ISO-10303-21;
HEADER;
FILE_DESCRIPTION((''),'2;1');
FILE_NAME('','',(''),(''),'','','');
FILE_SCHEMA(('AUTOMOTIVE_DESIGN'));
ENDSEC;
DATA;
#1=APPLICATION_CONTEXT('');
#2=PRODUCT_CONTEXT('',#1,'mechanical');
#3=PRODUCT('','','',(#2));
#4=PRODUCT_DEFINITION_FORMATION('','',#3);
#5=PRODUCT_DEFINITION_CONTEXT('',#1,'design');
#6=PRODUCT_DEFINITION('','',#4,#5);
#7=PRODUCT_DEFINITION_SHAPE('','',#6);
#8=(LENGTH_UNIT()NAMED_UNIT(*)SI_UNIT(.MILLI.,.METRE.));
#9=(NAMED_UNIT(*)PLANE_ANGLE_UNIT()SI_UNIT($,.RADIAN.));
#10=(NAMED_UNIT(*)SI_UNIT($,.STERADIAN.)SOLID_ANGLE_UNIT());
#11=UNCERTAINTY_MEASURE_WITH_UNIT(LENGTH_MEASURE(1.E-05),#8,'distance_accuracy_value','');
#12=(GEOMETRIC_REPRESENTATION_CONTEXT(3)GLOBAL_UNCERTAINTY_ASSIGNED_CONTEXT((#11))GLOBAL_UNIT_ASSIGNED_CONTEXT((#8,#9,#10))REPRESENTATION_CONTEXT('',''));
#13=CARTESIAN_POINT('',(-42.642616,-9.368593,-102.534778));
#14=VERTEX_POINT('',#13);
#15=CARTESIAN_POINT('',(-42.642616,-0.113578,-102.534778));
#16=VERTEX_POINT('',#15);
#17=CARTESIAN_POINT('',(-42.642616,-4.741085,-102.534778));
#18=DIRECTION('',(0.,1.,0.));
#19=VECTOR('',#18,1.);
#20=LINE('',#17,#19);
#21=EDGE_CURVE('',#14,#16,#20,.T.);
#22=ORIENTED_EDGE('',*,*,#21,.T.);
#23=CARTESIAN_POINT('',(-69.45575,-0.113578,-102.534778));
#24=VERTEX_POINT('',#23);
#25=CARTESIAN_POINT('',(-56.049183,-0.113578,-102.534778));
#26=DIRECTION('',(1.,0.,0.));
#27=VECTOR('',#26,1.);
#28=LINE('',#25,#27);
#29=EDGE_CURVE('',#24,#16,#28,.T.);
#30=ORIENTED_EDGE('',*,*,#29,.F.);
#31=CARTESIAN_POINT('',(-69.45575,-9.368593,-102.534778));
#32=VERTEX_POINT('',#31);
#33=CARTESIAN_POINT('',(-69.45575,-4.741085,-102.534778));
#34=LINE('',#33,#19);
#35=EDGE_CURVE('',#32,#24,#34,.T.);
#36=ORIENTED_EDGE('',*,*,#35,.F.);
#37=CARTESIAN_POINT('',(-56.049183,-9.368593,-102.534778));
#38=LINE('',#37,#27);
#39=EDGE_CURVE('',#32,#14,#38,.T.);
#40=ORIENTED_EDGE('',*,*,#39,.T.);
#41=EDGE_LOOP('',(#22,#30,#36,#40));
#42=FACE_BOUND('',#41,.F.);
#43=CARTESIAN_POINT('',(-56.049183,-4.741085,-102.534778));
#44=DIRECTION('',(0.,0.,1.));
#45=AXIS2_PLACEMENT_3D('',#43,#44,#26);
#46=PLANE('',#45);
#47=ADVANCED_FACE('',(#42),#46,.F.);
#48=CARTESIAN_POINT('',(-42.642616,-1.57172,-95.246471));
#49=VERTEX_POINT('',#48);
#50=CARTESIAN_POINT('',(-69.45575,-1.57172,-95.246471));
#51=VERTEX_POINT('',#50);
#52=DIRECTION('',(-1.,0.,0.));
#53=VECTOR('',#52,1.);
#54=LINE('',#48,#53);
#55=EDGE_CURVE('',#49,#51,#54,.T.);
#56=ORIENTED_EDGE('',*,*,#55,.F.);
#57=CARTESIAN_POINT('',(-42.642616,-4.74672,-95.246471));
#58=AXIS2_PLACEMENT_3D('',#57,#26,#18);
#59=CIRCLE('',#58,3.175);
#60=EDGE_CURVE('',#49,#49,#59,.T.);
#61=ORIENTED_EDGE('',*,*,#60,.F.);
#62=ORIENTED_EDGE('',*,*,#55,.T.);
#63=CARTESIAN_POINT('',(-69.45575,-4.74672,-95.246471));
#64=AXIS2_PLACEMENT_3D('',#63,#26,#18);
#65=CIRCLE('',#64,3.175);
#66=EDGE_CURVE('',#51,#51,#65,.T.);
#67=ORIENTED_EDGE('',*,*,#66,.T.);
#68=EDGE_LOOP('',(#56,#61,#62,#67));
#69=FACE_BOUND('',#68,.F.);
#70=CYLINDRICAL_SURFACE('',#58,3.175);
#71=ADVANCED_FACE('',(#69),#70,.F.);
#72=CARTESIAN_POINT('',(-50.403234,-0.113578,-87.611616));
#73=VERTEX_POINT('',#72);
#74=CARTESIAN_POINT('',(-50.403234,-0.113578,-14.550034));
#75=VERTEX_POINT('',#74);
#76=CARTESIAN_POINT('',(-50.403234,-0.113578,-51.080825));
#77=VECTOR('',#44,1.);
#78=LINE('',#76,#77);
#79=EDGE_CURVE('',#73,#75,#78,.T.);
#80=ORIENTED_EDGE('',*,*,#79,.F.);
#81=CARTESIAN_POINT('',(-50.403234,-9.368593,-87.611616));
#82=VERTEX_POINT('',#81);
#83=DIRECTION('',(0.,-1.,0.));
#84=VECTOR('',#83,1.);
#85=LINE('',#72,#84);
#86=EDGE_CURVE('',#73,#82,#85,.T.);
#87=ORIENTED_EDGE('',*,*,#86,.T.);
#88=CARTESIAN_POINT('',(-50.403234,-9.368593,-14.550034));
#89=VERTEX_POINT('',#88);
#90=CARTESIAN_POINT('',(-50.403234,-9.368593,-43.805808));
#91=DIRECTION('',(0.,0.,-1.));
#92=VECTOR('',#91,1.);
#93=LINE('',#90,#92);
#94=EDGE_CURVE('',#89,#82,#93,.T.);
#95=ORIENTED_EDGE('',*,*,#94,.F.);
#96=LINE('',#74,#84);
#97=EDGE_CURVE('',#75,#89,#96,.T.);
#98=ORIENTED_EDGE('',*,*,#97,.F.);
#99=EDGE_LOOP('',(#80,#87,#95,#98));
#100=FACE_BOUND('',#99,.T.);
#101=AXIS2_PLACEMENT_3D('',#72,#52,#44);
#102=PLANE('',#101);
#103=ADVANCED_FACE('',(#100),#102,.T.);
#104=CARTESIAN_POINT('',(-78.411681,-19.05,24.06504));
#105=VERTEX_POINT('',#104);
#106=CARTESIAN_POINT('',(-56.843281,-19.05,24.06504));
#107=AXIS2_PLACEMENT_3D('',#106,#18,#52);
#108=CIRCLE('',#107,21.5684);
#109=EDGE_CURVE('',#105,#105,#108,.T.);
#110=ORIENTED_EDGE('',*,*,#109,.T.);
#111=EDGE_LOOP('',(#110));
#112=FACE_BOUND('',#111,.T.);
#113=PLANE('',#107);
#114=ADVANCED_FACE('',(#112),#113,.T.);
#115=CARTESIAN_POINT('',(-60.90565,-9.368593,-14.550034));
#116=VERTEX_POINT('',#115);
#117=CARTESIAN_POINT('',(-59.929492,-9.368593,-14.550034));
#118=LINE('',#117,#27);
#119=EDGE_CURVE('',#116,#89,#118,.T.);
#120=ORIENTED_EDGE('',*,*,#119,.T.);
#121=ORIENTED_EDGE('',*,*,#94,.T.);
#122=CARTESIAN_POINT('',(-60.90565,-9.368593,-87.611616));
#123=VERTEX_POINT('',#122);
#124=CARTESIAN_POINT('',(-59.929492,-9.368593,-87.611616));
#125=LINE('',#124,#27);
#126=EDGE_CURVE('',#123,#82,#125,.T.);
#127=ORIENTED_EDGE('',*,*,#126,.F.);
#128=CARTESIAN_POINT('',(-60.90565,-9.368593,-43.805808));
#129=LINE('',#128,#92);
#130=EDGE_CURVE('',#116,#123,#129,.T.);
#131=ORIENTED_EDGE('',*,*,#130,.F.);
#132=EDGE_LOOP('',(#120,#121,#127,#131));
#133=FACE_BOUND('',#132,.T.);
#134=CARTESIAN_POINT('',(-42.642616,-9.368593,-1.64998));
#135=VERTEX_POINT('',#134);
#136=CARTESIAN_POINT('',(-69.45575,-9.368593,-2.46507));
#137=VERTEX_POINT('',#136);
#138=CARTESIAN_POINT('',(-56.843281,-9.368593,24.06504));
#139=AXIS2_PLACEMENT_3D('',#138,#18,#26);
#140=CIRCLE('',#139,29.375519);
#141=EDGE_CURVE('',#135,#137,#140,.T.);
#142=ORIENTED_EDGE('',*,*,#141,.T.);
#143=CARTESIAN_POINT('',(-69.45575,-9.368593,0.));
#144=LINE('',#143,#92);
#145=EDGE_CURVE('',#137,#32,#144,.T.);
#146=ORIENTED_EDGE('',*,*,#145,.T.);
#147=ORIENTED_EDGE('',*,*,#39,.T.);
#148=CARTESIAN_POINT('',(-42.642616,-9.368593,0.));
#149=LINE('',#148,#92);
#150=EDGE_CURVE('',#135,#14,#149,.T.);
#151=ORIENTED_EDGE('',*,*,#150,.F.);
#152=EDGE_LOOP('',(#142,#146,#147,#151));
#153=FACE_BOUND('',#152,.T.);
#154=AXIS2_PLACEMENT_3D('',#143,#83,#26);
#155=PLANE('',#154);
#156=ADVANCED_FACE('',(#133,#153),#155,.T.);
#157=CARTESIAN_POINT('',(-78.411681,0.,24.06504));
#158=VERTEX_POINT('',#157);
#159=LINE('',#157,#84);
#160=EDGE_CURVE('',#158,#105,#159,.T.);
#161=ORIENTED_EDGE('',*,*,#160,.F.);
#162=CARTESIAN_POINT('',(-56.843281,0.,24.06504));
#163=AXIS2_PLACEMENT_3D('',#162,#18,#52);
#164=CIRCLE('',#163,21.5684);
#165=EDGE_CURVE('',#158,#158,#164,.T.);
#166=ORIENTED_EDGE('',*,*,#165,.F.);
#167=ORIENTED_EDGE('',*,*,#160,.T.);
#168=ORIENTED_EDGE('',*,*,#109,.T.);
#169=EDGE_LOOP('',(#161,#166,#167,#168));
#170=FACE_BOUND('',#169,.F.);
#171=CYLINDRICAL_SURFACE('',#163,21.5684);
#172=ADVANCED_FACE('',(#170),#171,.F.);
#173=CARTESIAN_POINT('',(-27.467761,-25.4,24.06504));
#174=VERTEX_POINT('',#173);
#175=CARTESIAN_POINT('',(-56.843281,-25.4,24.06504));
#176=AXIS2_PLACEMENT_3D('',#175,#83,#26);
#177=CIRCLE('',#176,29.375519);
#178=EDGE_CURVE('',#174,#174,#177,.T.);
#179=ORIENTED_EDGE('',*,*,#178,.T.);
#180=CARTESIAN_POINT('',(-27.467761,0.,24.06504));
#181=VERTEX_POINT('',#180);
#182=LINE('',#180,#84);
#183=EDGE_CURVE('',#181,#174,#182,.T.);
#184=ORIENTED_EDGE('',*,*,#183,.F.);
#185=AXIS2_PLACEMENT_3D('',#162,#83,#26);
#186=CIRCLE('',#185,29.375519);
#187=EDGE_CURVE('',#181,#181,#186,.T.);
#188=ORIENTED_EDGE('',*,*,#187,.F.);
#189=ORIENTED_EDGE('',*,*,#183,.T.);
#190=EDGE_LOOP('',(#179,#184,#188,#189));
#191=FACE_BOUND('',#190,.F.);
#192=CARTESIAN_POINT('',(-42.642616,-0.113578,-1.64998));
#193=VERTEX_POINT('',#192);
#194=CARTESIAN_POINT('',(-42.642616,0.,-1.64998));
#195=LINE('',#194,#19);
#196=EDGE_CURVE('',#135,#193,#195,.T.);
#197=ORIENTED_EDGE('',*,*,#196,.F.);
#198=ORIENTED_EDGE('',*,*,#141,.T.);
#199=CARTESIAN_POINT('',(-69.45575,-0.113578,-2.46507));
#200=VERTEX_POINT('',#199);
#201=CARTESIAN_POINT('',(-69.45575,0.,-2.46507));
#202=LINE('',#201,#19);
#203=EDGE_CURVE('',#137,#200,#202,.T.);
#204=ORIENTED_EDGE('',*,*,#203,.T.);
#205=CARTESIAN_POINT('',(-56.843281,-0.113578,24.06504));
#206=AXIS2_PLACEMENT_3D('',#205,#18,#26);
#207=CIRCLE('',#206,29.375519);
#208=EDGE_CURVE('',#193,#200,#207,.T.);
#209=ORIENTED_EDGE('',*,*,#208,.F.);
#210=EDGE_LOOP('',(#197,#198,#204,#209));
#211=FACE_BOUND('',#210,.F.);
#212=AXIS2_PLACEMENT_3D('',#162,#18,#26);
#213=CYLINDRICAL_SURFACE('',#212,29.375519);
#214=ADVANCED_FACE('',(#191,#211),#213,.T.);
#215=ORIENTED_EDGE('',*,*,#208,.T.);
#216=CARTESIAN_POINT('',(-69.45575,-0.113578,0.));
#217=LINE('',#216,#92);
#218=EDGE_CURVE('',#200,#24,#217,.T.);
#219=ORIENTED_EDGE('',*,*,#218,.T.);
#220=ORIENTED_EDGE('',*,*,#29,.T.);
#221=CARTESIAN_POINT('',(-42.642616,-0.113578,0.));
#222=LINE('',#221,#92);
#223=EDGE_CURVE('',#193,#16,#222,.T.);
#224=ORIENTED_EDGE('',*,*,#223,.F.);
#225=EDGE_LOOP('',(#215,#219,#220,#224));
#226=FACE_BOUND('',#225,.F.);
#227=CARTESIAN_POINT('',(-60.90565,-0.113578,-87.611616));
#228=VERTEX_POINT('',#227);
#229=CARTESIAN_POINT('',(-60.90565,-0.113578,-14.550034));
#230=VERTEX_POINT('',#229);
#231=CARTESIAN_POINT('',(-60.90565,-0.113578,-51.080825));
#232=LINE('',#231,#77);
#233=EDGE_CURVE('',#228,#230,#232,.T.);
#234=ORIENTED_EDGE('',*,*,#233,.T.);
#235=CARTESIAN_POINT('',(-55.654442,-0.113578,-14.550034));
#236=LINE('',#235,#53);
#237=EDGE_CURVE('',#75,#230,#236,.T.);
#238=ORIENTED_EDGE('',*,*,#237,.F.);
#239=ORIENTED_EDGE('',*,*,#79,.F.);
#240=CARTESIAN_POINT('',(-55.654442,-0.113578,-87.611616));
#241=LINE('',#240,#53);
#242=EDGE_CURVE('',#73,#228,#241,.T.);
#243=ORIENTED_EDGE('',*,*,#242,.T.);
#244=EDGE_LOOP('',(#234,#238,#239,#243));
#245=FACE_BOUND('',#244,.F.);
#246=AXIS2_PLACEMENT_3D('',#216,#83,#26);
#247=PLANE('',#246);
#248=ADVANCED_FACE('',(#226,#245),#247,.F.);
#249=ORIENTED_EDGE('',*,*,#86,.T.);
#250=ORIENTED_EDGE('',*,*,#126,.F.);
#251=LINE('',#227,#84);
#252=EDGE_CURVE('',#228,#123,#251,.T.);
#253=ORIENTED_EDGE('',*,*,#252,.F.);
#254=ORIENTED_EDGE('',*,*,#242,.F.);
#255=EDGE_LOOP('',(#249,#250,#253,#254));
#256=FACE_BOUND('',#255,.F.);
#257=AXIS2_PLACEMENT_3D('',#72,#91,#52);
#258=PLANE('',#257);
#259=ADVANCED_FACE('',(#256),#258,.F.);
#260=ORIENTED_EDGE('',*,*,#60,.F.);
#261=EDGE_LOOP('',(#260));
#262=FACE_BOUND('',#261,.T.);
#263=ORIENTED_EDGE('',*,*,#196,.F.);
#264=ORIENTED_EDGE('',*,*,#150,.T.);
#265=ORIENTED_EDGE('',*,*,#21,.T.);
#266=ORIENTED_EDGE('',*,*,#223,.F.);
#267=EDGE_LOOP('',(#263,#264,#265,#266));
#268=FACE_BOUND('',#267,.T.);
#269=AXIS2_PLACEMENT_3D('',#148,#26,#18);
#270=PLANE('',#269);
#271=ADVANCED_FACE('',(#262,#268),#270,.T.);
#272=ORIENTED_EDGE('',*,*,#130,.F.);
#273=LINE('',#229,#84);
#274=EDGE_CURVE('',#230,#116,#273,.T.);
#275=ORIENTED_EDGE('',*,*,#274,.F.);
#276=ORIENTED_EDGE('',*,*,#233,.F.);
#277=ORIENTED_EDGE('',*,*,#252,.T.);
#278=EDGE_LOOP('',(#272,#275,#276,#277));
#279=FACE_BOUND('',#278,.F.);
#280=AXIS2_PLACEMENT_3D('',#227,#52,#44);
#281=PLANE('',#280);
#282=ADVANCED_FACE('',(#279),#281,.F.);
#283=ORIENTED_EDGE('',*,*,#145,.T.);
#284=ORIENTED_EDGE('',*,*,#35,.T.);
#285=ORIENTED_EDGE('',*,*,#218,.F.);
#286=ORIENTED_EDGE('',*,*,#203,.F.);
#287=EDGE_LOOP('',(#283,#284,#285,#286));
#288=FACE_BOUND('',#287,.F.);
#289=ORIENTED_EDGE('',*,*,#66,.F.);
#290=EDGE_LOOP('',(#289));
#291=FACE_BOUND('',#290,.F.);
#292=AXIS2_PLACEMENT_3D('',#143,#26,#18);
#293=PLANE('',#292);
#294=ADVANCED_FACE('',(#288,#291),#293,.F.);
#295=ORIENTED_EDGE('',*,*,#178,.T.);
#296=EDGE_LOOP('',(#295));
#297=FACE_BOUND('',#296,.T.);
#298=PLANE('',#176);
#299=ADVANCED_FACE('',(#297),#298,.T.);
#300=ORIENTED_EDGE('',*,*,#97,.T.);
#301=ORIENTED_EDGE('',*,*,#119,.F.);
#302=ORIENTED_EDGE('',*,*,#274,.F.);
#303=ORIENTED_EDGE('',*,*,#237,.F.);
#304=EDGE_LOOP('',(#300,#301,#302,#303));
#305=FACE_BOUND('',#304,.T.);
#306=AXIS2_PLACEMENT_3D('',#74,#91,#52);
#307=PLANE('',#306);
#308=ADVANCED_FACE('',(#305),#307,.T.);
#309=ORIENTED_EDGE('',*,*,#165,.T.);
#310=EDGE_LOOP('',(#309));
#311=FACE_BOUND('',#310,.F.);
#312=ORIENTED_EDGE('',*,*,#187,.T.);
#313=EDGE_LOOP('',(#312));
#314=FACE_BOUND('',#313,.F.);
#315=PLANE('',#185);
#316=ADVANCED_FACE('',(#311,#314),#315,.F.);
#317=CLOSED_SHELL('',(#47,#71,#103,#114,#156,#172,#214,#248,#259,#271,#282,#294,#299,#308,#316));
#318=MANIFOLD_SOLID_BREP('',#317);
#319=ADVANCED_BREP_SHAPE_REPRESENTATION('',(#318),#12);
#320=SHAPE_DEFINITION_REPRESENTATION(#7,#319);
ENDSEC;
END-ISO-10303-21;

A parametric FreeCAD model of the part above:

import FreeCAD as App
import Part
import Sketcher
from FreeCAD import Vector
Q = App.Units.Quantity

doc = App.newDocument("Part")
body = doc.addObject("PartDesign::Body", "Body")

sketch1 = body.newObject("Sketcher::SketchObject", "Sketch")
sketch1.AttachmentSupport = (doc.getObject("XZ_Plane"), [""])
sketch1.MapMode = "FlatFace"
sketch1.addGeometry(Part.Circle(Vector(-57, 24, 0), Vector(0, 0, 1), 29), False)
sketch1.addConstraint([
    Sketcher.Constraint("Diameter", 0, 58.751039),
    Sketcher.Constraint("DistanceX", 0, 3, -1, 1, 56.843281),
    Sketcher.Constraint("DistanceY", -1, 1, 0, 3, 24.06504),
])
pad1 = body.newObject("PartDesign::Pad", "Pad")
pad1.Profile = sketch1
pad1.Length = Q("1 in")

sketch2 = body.newObject("Sketcher::SketchObject", "Sketch001")
sketch2.AttachmentSupport = (doc.getObject("XY_Plane"), [""])
sketch2.MapMode = "FlatFace"
sketch2.addGeometry([
    Part.LineSegment(Vector(-69, 0, 0), Vector(-69, -9, 0)),
    Part.LineSegment(Vector(-69, -9, 0), Vector(-43, -9, 0)),
    Part.LineSegment(Vector(-43, -9, 0), Vector(-43, 0, 0)),
    Part.LineSegment(Vector(-43, 0, 0), Vector(-69, 0, 0)),
], False)
sketch2.addConstraint([
    Sketcher.Constraint("Coincident", 0, 2, 1, 1),
    Sketcher.Constraint("Coincident", 1, 2, 2, 1),
    Sketcher.Constraint("Coincident", 2, 2, 3, 1),
    Sketcher.Constraint("Coincident", 3, 2, 0, 1),
    Sketcher.Constraint("Vertical", 0),
    Sketcher.Constraint("Horizontal", 1),
    Sketcher.Constraint("Vertical", 2),
    Sketcher.Constraint("Horizontal", 3),
    Sketcher.Constraint("DistanceX", 1, 1, 1, 2, 26.813135),
    Sketcher.Constraint("DistanceY", 0, 2, 0, 1, 9.255015),
    Sketcher.Constraint("DistanceX", 0, 2, -1, 1, 69.45575),
    Sketcher.Constraint("DistanceY", 2, 2, -1, 1, 0.113578),
])
pad2 = body.newObject("PartDesign::Pad", "Pad001")
pad2.Profile = sketch2
pad2.Length = 102.534778
pad2.Reversed = True

sketch3 = body.newObject("Sketcher::SketchObject", "Sketch002")
sketch3.AttachmentSupport = (doc.getObject("XZ_Plane"), [""])
sketch3.MapMode = "FlatFace"
sketch3.addGeometry(Part.Circle(Vector(-57, 24, 0), Vector(0, 0, 1), 22), False)
sketch3.addConstraint([
    Sketcher.Constraint("Diameter", 0, 43.1368),
    Sketcher.Constraint("DistanceX", 0, 3, -1, 1, 56.843281),
    Sketcher.Constraint("DistanceY", -1, 1, 0, 3, 24.06504),
])
pocket1 = body.newObject("PartDesign::Pocket", "Pocket")
pocket1.Profile = sketch3
pocket1.Length = Q("0.75 in")
pocket1.Reversed = True

sketch4 = body.newObject("Sketcher::SketchObject", "Sketch003")
sketch4.AttachmentSupport = (doc.getObject("YZ_Plane"), [""])
sketch4.MapMode = "FlatFace"
sketch4.AttachmentOffset = App.Placement(Vector(0, 0, -42.642616), App.Rotation())
sketch4.addGeometry(Part.Circle(Vector(-4.7, -95.2, 0), Vector(0, 0, 1), 3.2), False)
sketch4.addConstraint([
    Sketcher.Constraint("Diameter", 0, Q("0.25 in")),
    Sketcher.Constraint("DistanceX", 0, 3, -1, 1, 4.74672),
    Sketcher.Constraint("DistanceY", 0, 3, -1, 1, 95.246471),
])
pocket2 = body.newObject("PartDesign::Pocket", "Pocket001")
pocket2.Profile = sketch4
pocket2.Length = Q("2 in")

sketch5 = body.newObject("Sketcher::SketchObject", "Sketch004")
sketch5.AttachmentSupport = (doc.getObject("XZ_Plane"), [""])
sketch5.MapMode = "FlatFace"
sketch5.AttachmentOffset = App.Placement(Vector(0, 0, 0.113578), App.Rotation())
sketch5.addGeometry([
    Part.LineSegment(Vector(-50, -15, 0), Vector(-50, -88, 0)),
    Part.LineSegment(Vector(-50, -88, 0), Vector(-61, -88, 0)),
    Part.LineSegment(Vector(-61, -88, 0), Vector(-61, -15, 0)),
    Part.LineSegment(Vector(-61, -15, 0), Vector(-50, -15, 0)),
], False)
sketch5.addConstraint([
    Sketcher.Constraint("Coincident", 0, 2, 1, 1),
    Sketcher.Constraint("Coincident", 1, 2, 2, 1),
    Sketcher.Constraint("Coincident", 2, 2, 3, 1),
    Sketcher.Constraint("Coincident", 3, 2, 0, 1),
    Sketcher.Constraint("Vertical", 0),
    Sketcher.Constraint("Horizontal", 1),
    Sketcher.Constraint("Vertical", 2),
    Sketcher.Constraint("Horizontal", 3),
    Sketcher.Constraint("DistanceY", 0, 2, 0, 1, 73.061582),
    Sketcher.Constraint("DistanceX", 1, 2, 1, 1, 10.502417),
    Sketcher.Constraint("DistanceX", 1, 2, -1, 1, 60.90565),
    Sketcher.Constraint("DistanceY", 0, 2, -1, 1, 87.611616),
])
pocket3 = body.newObject("PartDesign::Pocket", "Pocket002")
pocket3.Profile = sketch5
pocket3.Length = Q("1 in")
pocket3.Reversed = True

doc.recompute()
